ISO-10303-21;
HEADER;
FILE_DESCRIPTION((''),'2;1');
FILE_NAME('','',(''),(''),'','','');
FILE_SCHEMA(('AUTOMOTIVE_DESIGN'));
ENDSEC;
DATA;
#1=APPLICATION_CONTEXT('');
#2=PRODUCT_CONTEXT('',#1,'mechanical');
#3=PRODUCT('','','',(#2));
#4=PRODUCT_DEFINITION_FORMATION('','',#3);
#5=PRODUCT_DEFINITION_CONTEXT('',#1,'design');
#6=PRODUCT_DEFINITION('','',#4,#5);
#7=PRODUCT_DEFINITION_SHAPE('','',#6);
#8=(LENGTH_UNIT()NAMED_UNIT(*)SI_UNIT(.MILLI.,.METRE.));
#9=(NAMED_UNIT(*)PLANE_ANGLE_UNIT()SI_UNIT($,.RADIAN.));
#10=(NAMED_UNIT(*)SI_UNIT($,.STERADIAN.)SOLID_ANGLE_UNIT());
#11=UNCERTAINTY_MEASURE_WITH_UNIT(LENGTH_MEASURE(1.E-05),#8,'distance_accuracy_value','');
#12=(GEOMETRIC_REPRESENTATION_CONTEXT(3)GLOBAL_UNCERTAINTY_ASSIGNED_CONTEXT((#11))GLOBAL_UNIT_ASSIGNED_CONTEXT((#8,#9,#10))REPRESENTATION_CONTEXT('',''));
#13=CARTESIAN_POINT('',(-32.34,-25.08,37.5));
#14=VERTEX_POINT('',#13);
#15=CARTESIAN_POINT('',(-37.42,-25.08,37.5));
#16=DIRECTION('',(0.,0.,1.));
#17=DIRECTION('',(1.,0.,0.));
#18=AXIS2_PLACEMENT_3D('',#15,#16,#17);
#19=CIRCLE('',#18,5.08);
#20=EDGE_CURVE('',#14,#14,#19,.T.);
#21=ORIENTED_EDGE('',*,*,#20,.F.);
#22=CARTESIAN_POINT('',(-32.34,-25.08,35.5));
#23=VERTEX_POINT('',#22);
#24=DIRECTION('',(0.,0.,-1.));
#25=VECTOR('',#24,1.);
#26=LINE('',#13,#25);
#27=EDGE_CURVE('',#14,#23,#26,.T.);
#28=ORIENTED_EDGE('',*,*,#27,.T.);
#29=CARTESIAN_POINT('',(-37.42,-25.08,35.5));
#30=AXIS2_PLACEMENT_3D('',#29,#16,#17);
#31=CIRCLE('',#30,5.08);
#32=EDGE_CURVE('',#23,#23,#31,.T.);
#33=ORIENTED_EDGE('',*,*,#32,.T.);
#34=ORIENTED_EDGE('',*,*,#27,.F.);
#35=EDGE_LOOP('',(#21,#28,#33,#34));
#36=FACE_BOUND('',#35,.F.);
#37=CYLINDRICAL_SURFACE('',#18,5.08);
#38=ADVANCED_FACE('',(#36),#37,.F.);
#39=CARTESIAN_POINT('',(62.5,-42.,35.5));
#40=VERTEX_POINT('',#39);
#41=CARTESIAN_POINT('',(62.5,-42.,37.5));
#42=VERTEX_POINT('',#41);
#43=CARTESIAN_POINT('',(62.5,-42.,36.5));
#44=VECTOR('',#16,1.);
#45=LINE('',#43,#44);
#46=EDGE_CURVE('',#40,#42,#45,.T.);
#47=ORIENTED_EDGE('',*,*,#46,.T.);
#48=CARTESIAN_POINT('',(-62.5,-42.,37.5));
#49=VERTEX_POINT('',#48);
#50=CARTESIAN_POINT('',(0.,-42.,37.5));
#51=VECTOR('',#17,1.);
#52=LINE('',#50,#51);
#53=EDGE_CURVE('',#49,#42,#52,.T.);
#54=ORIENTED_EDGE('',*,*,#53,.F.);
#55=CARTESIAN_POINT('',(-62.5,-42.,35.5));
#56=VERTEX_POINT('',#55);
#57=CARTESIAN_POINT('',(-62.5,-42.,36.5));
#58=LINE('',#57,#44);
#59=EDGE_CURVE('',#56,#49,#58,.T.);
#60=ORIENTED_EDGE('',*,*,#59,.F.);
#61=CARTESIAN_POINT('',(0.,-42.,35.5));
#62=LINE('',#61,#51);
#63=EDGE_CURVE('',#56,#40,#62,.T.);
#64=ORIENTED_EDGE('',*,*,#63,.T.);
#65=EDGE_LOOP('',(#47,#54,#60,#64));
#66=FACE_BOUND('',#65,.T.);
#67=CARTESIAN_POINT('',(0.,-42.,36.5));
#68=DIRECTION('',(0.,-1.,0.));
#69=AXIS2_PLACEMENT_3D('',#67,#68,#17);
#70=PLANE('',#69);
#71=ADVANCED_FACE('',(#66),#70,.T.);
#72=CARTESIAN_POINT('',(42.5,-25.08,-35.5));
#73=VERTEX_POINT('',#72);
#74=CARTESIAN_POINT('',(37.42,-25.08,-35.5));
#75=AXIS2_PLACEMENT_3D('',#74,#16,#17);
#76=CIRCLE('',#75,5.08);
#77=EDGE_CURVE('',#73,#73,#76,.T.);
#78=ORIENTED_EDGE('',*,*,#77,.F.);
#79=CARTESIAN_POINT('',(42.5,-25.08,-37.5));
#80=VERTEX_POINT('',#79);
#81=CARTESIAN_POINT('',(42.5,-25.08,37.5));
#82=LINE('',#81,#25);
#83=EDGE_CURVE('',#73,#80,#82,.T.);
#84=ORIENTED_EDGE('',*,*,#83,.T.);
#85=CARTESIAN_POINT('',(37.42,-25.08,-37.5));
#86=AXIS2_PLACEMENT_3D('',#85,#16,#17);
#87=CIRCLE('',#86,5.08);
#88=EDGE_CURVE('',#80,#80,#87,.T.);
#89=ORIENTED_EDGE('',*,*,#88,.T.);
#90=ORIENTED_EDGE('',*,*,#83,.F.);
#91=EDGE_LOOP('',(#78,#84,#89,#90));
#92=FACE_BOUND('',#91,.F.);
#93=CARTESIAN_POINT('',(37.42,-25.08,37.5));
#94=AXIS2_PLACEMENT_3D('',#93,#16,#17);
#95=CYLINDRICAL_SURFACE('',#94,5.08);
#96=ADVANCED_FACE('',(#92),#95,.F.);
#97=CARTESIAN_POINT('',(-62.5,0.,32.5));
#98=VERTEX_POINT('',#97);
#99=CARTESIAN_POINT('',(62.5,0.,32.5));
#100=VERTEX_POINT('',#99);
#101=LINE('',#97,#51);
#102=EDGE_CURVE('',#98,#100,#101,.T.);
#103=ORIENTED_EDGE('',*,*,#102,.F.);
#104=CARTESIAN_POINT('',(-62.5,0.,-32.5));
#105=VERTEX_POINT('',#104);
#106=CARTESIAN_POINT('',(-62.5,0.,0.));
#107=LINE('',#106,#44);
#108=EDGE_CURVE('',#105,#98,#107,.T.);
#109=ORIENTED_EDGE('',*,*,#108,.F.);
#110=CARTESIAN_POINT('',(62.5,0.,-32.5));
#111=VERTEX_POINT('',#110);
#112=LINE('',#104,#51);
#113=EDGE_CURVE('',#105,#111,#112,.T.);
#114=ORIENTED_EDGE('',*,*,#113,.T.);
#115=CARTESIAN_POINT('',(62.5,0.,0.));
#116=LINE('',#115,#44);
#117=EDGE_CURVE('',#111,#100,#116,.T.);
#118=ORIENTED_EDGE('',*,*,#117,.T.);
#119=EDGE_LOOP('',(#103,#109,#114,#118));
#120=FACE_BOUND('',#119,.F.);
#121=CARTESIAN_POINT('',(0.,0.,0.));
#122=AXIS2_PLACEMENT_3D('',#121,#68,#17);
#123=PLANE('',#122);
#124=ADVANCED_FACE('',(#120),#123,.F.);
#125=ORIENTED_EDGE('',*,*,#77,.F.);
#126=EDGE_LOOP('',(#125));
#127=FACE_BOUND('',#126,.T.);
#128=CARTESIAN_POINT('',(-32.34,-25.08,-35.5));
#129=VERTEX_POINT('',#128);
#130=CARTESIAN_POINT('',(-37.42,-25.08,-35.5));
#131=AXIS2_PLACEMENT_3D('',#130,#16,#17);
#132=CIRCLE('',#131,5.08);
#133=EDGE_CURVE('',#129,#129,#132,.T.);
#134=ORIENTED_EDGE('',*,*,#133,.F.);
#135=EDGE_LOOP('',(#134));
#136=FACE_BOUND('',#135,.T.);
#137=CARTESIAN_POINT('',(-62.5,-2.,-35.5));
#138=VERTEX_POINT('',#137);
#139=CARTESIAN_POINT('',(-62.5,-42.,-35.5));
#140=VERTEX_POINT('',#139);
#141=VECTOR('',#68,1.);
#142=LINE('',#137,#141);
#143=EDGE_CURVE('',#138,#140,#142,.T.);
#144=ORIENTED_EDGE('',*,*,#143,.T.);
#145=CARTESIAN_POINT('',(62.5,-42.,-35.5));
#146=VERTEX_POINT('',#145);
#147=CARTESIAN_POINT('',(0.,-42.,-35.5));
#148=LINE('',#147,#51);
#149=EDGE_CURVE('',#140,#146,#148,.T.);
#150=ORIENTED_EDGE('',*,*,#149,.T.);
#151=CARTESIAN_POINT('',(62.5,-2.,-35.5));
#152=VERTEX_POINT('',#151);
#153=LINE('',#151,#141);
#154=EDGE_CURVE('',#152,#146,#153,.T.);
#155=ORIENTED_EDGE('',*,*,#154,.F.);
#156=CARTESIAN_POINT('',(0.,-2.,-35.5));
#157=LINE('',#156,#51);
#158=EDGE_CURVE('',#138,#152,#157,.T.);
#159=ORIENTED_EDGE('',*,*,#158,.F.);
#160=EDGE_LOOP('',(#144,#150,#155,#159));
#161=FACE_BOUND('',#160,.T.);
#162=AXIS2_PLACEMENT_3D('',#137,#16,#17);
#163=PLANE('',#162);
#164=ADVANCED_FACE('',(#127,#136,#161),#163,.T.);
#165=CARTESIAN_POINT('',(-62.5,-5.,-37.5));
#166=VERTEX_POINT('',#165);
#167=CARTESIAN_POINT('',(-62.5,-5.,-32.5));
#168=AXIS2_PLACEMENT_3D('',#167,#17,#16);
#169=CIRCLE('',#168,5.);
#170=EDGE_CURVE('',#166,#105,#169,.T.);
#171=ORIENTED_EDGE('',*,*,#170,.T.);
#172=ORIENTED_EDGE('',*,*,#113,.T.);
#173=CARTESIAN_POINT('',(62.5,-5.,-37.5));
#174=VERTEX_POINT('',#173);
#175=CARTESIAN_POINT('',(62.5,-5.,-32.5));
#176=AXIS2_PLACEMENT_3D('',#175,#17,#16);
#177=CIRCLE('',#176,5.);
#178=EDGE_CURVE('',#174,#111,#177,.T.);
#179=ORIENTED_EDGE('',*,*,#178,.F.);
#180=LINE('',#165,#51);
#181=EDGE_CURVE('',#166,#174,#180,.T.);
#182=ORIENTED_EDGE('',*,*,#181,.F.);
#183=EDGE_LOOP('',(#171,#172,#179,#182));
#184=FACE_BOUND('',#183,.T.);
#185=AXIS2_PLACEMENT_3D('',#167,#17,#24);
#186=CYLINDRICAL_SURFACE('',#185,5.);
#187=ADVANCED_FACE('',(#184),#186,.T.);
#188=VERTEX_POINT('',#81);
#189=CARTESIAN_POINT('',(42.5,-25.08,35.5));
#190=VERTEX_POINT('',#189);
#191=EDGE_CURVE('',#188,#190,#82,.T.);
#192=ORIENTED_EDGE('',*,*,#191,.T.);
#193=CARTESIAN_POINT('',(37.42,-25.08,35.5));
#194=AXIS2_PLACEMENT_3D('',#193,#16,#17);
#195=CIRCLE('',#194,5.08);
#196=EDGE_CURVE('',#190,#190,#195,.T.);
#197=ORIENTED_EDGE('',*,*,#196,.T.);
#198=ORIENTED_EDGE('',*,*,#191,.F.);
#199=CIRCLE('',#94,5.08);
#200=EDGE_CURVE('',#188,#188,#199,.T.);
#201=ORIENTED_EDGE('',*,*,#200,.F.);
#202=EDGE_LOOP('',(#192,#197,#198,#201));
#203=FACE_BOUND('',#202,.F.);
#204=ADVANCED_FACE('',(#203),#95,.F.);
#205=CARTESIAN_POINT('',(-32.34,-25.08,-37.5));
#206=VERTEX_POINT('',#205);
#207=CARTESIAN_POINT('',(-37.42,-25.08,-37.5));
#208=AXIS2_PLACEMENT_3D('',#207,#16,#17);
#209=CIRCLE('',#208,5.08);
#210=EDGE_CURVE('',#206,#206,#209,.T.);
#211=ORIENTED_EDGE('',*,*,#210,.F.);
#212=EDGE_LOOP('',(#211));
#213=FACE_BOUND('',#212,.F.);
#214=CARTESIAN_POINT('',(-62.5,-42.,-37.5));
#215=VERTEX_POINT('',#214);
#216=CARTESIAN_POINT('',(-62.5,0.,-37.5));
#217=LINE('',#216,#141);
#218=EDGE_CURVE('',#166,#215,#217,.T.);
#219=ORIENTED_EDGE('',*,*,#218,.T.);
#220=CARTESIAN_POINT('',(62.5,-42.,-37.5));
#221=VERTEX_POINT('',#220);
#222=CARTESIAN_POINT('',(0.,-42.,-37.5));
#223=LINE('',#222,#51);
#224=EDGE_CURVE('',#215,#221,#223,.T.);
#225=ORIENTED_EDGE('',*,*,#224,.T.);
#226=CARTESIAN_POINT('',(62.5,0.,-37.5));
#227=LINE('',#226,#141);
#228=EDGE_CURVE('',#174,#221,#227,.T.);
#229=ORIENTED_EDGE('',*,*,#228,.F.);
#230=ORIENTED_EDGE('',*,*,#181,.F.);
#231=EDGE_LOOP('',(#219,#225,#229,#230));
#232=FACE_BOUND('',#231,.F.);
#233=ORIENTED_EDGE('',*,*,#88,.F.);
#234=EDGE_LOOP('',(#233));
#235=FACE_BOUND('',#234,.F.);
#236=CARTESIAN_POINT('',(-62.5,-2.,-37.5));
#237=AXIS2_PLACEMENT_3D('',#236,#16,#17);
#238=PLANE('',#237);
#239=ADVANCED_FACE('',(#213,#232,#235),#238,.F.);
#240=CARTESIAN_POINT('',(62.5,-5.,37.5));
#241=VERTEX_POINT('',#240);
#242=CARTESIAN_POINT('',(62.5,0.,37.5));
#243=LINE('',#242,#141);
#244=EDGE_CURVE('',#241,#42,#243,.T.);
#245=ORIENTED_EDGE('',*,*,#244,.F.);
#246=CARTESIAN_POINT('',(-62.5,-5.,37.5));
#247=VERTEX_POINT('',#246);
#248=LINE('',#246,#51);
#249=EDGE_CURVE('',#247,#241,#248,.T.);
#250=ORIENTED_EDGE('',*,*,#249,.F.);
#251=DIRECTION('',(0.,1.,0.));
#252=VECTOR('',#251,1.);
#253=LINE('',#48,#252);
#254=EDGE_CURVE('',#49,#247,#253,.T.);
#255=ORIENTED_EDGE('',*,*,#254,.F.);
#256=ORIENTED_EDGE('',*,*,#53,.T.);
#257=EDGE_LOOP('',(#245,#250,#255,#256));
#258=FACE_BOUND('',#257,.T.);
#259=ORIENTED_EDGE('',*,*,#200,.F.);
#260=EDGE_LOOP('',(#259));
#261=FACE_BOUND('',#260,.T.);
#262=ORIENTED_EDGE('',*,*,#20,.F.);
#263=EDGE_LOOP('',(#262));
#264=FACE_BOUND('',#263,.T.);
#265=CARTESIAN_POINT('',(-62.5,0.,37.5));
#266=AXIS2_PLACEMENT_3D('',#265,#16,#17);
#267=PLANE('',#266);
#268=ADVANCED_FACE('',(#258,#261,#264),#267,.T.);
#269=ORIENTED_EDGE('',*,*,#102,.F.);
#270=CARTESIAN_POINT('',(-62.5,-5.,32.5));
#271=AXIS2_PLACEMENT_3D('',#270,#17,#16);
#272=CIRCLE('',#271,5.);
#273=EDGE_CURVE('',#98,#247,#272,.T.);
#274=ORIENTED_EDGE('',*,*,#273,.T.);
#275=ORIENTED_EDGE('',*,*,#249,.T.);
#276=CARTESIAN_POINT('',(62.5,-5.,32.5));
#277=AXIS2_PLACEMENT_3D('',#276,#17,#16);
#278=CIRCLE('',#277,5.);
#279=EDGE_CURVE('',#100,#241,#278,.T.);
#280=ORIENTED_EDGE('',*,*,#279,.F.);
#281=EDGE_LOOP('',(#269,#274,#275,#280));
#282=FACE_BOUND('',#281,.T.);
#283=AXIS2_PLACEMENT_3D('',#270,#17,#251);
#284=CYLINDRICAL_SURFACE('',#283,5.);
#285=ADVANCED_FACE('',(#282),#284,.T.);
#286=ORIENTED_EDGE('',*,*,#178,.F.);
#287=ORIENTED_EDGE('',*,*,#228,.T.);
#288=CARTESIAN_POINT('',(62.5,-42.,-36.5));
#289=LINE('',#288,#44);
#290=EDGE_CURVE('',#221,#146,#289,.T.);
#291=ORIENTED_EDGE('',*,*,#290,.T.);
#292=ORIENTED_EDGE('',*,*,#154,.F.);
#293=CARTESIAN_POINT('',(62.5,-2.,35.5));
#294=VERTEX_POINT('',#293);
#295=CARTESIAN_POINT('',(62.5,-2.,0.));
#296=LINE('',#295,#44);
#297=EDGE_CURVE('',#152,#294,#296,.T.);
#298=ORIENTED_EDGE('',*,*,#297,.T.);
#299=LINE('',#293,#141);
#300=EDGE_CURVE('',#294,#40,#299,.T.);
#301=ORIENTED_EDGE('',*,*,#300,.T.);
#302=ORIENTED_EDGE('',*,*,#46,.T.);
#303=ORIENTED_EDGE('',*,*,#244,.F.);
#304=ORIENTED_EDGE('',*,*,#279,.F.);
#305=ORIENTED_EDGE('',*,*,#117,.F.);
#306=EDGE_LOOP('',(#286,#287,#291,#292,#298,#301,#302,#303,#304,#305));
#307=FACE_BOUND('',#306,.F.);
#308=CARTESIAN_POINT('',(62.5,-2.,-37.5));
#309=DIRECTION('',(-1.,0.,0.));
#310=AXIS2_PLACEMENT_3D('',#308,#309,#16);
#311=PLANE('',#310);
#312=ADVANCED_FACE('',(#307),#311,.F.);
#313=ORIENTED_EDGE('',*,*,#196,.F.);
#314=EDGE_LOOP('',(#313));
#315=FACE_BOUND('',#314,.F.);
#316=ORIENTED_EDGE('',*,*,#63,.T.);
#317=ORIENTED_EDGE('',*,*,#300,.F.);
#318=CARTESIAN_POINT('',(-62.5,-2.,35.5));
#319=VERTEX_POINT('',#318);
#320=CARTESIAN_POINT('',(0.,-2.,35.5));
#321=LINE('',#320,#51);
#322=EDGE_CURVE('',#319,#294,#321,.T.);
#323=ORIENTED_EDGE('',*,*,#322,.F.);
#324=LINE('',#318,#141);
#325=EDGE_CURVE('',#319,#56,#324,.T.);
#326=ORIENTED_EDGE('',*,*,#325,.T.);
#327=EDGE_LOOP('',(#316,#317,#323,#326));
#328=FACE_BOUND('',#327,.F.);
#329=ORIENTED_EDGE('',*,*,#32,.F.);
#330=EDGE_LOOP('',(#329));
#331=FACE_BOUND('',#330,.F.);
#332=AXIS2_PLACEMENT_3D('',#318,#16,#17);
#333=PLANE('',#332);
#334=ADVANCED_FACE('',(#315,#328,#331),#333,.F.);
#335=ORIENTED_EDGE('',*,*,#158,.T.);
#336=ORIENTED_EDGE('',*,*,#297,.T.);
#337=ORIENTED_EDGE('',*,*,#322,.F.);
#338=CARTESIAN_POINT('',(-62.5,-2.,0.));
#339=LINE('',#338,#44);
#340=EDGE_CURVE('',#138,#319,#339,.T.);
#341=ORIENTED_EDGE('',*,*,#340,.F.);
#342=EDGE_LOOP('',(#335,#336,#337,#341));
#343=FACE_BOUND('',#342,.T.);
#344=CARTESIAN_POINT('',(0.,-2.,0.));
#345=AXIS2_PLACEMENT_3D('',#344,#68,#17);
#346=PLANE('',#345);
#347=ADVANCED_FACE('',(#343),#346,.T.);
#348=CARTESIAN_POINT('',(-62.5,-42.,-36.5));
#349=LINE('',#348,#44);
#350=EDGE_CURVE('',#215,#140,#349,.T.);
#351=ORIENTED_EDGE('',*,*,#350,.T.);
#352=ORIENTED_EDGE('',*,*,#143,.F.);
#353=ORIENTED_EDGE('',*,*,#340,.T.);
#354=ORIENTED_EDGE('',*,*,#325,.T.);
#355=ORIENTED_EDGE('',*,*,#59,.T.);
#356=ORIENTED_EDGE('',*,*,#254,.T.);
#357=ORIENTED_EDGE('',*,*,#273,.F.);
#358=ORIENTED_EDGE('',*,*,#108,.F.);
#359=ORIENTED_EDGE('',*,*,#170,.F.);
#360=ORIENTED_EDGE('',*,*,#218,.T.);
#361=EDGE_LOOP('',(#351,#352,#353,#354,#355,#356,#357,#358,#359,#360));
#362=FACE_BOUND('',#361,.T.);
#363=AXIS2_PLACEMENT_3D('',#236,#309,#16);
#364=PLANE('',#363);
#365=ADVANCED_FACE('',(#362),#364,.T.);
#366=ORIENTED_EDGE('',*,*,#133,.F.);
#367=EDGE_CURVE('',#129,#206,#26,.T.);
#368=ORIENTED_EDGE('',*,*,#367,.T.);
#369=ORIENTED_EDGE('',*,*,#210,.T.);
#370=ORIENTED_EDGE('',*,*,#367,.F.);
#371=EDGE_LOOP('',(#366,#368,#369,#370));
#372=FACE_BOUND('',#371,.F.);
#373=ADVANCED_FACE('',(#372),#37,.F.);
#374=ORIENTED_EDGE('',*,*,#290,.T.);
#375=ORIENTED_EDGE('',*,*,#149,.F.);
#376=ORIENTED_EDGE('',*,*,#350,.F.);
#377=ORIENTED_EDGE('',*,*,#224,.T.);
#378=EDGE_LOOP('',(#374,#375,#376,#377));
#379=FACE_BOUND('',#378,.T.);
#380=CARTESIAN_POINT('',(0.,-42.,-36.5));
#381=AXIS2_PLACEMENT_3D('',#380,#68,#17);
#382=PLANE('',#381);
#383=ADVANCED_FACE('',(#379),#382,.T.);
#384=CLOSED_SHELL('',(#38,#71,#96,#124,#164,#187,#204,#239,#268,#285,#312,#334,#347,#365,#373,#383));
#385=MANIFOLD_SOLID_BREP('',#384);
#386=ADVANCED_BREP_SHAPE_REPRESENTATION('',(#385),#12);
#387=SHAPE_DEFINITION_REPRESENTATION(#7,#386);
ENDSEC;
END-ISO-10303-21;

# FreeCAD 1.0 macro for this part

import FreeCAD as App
import Part
import Sketcher
Q = App.Units.Quantity


def edges_at(feature, points):
    """Names of the edges that pass closest to the given points."""
    edges = feature.Shape.Edges
    near = lambda p: min(range(len(edges)), key=lambda i: edges[i].distToShape(Part.Vertex(*p))[0])
    return sorted({f"Edge{near(p) + 1}" for p in points})

doc = App.newDocument("Part")
params = doc.addObject("Spreadsheet::Sheet", "Params")
for row, (alias, value) in enumerate([
    ("sketch1_width", "125 mm"),
    ("sketch1_height", "75 mm"),
    ("pad1_length", "2 mm"),
    ("sketch2_width", "125 mm"),
    ("sketch2_height", "2 mm"),
    ("pad2_length", "40 mm"),
    ("fillet_radius", "5 mm"),
    ("sketch3_diameter", "10.16 mm"),
    ("pocket1_length", "100 mm"),
], start=1):
    params.set(f"A{row}", alias)
    params.set(f"B{row}", "=" + value)
    params.setAlias(f"B{row}", alias)

body = doc.addObject("PartDesign::Body", "Body")

# Sketch on XZ plane
sketch1 = body.newObject("Sketcher::SketchObject", "Sketch")
sketch1.AttachmentSupport = (doc.getObject("XZ_Plane"), [""])
sketch1.MapMode = "FlatFace"
sketch1.addGeometry([
    Part.LineSegment(App.Vector(-62, 38, 0), App.Vector(-62, -38, 0)),
    Part.LineSegment(App.Vector(-62, -38, 0), App.Vector(62, -38, 0)),
    Part.LineSegment(App.Vector(62, -38, 0), App.Vector(62, 38, 0)),
    Part.LineSegment(App.Vector(62, 38, 0), App.Vector(-62, 38, 0)),
], False)
sketch1.addConstraint([
    Sketcher.Constraint("Coincident", 0, 2, 1, 1),
    Sketcher.Constraint("Coincident", 1, 2, 2, 1),
    Sketcher.Constraint("Coincident", 2, 2, 3, 1),
    Sketcher.Constraint("Coincident", 3, 2, 0, 1),
    Sketcher.Constraint("Vertical", 0),
    Sketcher.Constraint("Horizontal", 1),
    Sketcher.Constraint("Vertical", 2),
    Sketcher.Constraint("Horizontal", 3),
    Sketcher.Constraint("Symmetric", 0, 2, 2, 2, -1, 1),
    Sketcher.Constraint("DistanceX", 1, 1, 1, 2, Q("125 mm")),
    Sketcher.Constraint("DistanceY", 0, 2, 0, 1, Q("75 mm")),
])
sketch1.setExpression("Constraints[9]", "Params.sketch1_width")
sketch1.setExpression("Constraints[10]", "Params.sketch1_height")
pad1 = body.newObject("PartDesign::Pad", "Pad")
pad1.Profile = sketch1
pad1.setExpression("Length", "Params.pad1_length")

# Sketch on XZ plane
sketch2 = body.newObject("Sketcher::SketchObject", "Sketch001")
sketch2.AttachmentSupport = (doc.getObject("XZ_Plane"), [""])
sketch2.MapMode = "FlatFace"
sketch2.AttachmentOffset = App.Placement(App.Vector(0, 0, 2), App.Rotation())
sketch2.addGeometry([
    Part.LineSegment(App.Vector(-62.5, -35.5, 0), App.Vector(-62.5, -37.5, 0)),  # 0
    Part.LineSegment(App.Vector(-62.5, -37.5, 0), App.Vector(62.5, -37.5, 0)),  # 1
    Part.LineSegment(App.Vector(62.5, -37.5, 0), App.Vector(62.5, -35.5, 0)),  # 2
    Part.LineSegment(App.Vector(62.5, -35.5, 0), App.Vector(-62.5, -35.5, 0)),  # 3
    Part.LineSegment(App.Vector(-62.5, 37.5, 0), App.Vector(-62.5, 35.5, 0)),  # 4
    Part.LineSegment(App.Vector(-62.5, 35.5, 0), App.Vector(62.5, 35.5, 0)),  # 5
    Part.LineSegment(App.Vector(62.5, 35.5, 0), App.Vector(62.5, 37.5, 0)),  # 6
    Part.LineSegment(App.Vector(62.5, 37.5, 0), App.Vector(-62.5, 37.5, 0)),  # 7
], False)
sketch2.addConstraint([
    Sketcher.Constraint("Coincident", 0, 2, 1, 1),
    Sketcher.Constraint("Coincident", 1, 2, 2, 1),
    Sketcher.Constraint("Coincident", 2, 2, 3, 1),
    Sketcher.Constraint("Coincident", 3, 2, 0, 1),
    Sketcher.Constraint("Coincident", 4, 2, 5, 1),
    Sketcher.Constraint("Coincident", 5, 2, 6, 1),
    Sketcher.Constraint("Coincident", 6, 2, 7, 1),
    Sketcher.Constraint("Coincident", 7, 2, 4, 1),
    Sketcher.Constraint("Vertical", 0),
    Sketcher.Constraint("Horizontal", 1),
    Sketcher.Constraint("Vertical", 2),
    Sketcher.Constraint("Horizontal", 3),
    Sketcher.Constraint("Vertical", 4),
    Sketcher.Constraint("Horizontal", 5),
    Sketcher.Constraint("Vertical", 6),
    Sketcher.Constraint("Horizontal", 7),
    Sketcher.Constraint("Symmetric", 2, 2, 4, 2, -1, 1),
    Sketcher.Constraint("Symmetric", 0, 2, 6, 2, -1, 1),
    Sketcher.Constraint("Vertical", 3, 2, 4, 2),
    Sketcher.Constraint("DistanceX", 1, 1, 1, 2, Q("125 mm")),
    Sketcher.Constraint("DistanceY", 0, 2, 0, 1, Q("2 mm")),
    Sketcher.Constraint("DistanceY", 3, 2, 4, 2, Q("71 mm")),
])
sketch2.setExpression("Constraints[19]", "Params.sketch2_width")
sketch2.setExpression("Constraints[20]", "Params.sketch2_height")
pad2 = body.newObject("PartDesign::Pad", "Pad001")
pad2.Profile = sketch2
pad2.setExpression("Length", "Params.pad2_length")
doc.recompute()

fillet = body.newObject("PartDesign::Fillet", "Fillet")
fillet.Base = (pad2, edges_at(pad2, [(0, 0, 37.5), (0, 0, -37.5)]))
fillet.setExpression("Radius", "Params.fillet_radius")

# Sketch on XY plane
sketch3 = body.newObject("Sketcher::SketchObject", "Sketch002")
sketch3.AttachmentSupport = (doc.getObject("XY_Plane"), [""])
sketch3.MapMode = "FlatFace"
sketch3.AttachmentOffset = App.Placement(App.Vector(0, 0, 37.5), App.Rotation())
sketch3.addGeometry([
    Part.Circle(App.Vector(37, -25, 0), App.Vector(0, 0, 1), 5),
    Part.Circle(App.Vector(-37, -25, 0), App.Vector(0, 0, 1), 5),
], False)
sketch3.addConstraint([
    Sketcher.Constraint("Equal", 0, 1),
    Sketcher.Constraint("Symmetric", 0, 3, 1, 3, -2),
    Sketcher.Constraint("Diameter", 0, Q("10.16 mm")),
    Sketcher.Constraint("DistanceX", -1, 1, 0, 3, Q("37.42 mm")),
    Sketcher.Constraint("DistanceY", 0, 3, -1, 1, Q("25.08 mm")),
])
sketch3.setExpression("Constraints[2]", "Params.sketch3_diameter")
pocket1 = body.newObject("PartDesign::Pocket", "Pocket")
pocket1.Profile = sketch3
pocket1.setExpression("Length", "Params.pocket1_length")

doc.recompute()
